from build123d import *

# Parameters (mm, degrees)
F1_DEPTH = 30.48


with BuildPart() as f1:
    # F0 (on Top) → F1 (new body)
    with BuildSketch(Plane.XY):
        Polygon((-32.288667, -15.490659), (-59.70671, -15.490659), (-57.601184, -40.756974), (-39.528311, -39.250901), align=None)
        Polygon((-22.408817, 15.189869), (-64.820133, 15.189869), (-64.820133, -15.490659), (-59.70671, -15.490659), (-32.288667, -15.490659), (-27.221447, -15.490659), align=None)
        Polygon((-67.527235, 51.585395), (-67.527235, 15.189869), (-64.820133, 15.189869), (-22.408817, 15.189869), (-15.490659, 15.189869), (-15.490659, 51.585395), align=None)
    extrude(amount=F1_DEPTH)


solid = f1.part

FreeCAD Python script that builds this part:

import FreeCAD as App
import Part
import Sketcher
from FreeCAD import Vector


def add_polygon(sketch, points):
    """Adds a closed chain of lines whose ends are joined by coincident constraints."""
    first, n = sketch.GeometryCount, len(points)
    for a, b in zip(points, points[1:] + points[:1]):
        sketch.addGeometry(Part.LineSegment(App.Vector(*a, 0), App.Vector(*b, 0)), False)
    for i in range(n):
        sketch.addConstraint(Sketcher.Constraint("Coincident", first + i, 2, first + (i + 1) % n, 1))

doc = App.newDocument("Part")
params = doc.addObject("Spreadsheet::Sheet", "Params")
for row, (alias, value) in enumerate([
    ("pad1_length", "1.2 in"),
], start=1):
    params.set(f"A{row}", alias)
    params.set(f"B{row}", "=" + value)
    params.setAlias(f"B{row}", alias)

body = doc.addObject("PartDesign::Body", "Body")

sketch1 = body.newObject("Sketcher::SketchObject", "Sketch")
sketch1.AttachmentSupport = (doc.getObject("XY_Plane"), [""])
sketch1.MapMode = "FlatFace"
add_polygon(sketch1, [(-59.7, -15.5), (-57.6, -40.8), (-39.5, -39.3), (-32.3, -15.5), (-27.2, -15.5), (-22.4, 15.2), (-15.5, 15.2), (-15.5, 51.6), (-67.5, 51.6), (-67.5, 15.2), (-64.8, 15.2), (-64.8, -15.5)])
sketch1.addConstraint(Sketcher.Constraint("Horizontal", 3))
sketch1.addConstraint(Sketcher.Constraint("Horizontal", 5))
sketch1.addConstraint(Sketcher.Constraint("Vertical", 6))
sketch1.addConstraint(Sketcher.Constraint("Horizontal", 7))
sketch1.addConstraint(Sketcher.Constraint("Vertical", 8))
sketch1.addConstraint(Sketcher.Constraint("Horizontal", 9))
sketch1.addConstraint(Sketcher.Constraint("Vertical", 10))
sketch1.addConstraint(Sketcher.Constraint("Horizontal", 11))
sketch1.addConstraint(Sketcher.Constraint("Perpendicular", 0, 1))
sketch1.addConstraint(Sketcher.Constraint("Horizontal", 5, 2, 8, 2))
sketch1.addConstraint(Sketcher.Constraint("Horizontal", 3, 2, 10, 2))
sketch1.addConstraint(Sketcher.Constraint("DistanceX", 3, 1, 3, 2, 5.06722))
sketch1.addConstraint(Sketcher.Constraint("DistanceY", 10, 2, 10, 1, 30.680528))
sketch1.addConstraint(Sketcher.Constraint("DistanceY", 1, 2, -1, 1, 39.250901))
sketch1.addConstraint(Sketcher.Constraint("DistanceX", 11, 2, 1, 2, 20.178399))
sketch1.addConstraint(Sketcher.Constraint("Distance", 2, 24.838711))
sketch1.addConstraint(Sketcher.Constraint("DistanceX", 5, 1, 5, 2, 6.918158))
sketch1.addConstraint(Sketcher.Constraint("DistanceX", 7, 2, 7, 1, 52.036576))
sketch1.addConstraint(Sketcher.Constraint("DistanceX", 9, 1, 9, 2, 2.707102))
sketch1.addConstraint(Sketcher.Constraint("DistanceX", 11, 1, 11, 2, 5.113423))
sketch1.addConstraint(Sketcher.Constraint("DistanceY", 6, 1, 6, 2, 36.395526))
sketch1.addConstraint(Sketcher.Constraint("DistanceX", 1, 2, -1, 1, 39.528311))
sketch1.addConstraint(Sketcher.Constraint("DistanceY", 2, 2, -1, 1, 15.490659))
sketch1.addConstraint(Sketcher.Constraint("DistanceX", 10, 2, 0, 2, 7.218949))
pad1 = body.newObject("PartDesign::Pad", "Pad")
pad1.Profile = sketch1
pad1.setExpression("Length", "Params.pad1_length")

doc.recompute()
